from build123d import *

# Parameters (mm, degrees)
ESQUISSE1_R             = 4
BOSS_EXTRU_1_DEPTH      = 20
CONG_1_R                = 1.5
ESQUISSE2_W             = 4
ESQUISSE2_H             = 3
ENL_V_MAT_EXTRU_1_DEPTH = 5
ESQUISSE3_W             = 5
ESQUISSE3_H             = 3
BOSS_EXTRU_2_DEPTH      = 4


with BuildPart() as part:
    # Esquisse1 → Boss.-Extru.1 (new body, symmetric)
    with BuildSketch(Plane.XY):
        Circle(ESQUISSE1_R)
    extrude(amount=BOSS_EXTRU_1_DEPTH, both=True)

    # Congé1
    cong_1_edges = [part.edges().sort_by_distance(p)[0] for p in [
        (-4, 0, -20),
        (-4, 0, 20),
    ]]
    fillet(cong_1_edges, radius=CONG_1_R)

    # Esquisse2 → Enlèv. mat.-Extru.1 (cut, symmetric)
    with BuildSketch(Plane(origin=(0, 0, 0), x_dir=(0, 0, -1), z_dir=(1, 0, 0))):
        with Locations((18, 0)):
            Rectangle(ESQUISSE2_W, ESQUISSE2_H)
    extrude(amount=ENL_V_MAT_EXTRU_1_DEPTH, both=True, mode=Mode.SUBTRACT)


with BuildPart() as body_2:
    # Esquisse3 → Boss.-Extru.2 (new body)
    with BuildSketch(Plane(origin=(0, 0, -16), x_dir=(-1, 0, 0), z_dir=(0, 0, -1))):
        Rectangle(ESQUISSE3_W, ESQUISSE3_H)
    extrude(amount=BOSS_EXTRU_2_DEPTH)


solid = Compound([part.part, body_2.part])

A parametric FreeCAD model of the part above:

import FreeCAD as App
import Part
import Sketcher
from FreeCAD import Vector


def edges_at(feature, points):
    """Names of the edges that pass closest to the given points."""
    edges = feature.Shape.Edges
    near = lambda p: min(range(len(edges)), key=lambda i: edges[i].distToShape(Part.Vertex(*p))[0])
    return sorted({f"Edge{near(p) + 1}" for p in points})

doc = App.newDocument("Part")
params = doc.addObject("Spreadsheet::Sheet", "Params")
for row, (alias, value) in enumerate([
    ("sketch1_diameter", "8 mm"),
    ("pad1_length", "40 mm"),
    ("fillet_radius", "1.5 mm"),
    ("sketch2_width", "3 mm"),
    ("sketch2_height", "4 mm"),
    ("pocket1_length", "10 mm"),
    ("sketch3_width", "5 mm"),
    ("sketch3_height", "3 mm"),
    ("pad2_length", "4 mm"),
], start=1):
    params.set(f"A{row}", alias)
    params.set(f"B{row}", "=" + value)
    params.setAlias(f"B{row}", alias)

body = doc.addObject("PartDesign::Body", "Body")

# Sketch on XY plane
sketch1 = body.newObject("Sketcher::SketchObject", "Sketch")
sketch1.AttachmentSupport = (doc.getObject("XY_Plane"), [""])
sketch1.MapMode = "FlatFace"
sketch1.addGeometry(Part.Circle(Vector(0, 0, 0), Vector(0, 0, 1), 4), False)
sketch1.addConstraint(Sketcher.Constraint("Coincident", 0, 3, -1, 1))
sketch1.addConstraint(Sketcher.Constraint("Diameter", 0, 8.0))
sketch1.setExpression("Constraints[1]", "Params.sketch1_diameter")
pad1 = body.newObject("PartDesign::Pad", "Pad")
pad1.Profile = sketch1
pad1.setExpression("Length", "Params.pad1_length")
pad1.Midplane = True
doc.recompute()

fillet = body.newObject("PartDesign::Fillet", "Fillet")
fillet.Base = (pad1, edges_at(pad1, [(-4, 0, -20), (-4, 0, 20)]))
fillet.setExpression("Radius", "Params.fillet_radius")

# Sketch on YZ plane
sketch2 = body.newObject("Sketcher::SketchObject", "Sketch001")
sketch2.AttachmentSupport = (doc.getObject("YZ_Plane"), [""])
sketch2.MapMode = "FlatFace"
sketch2.addGeometry(Part.LineSegment(Vector(1.5, -16, 0), Vector(-1.5, -16, 0)), False)
sketch2.addGeometry(Part.LineSegment(Vector(-1.5, -16, 0), Vector(-1.5, -20, 0)), False)
sketch2.addGeometry(Part.LineSegment(Vector(-1.5, -20, 0), Vector(1.5, -20, 0)), False)
sketch2.addGeometry(Part.LineSegment(Vector(1.5, -20, 0), Vector(1.5, -16, 0)), False)
sketch2.addConstraint(Sketcher.Constraint("Coincident", 0, 2, 1, 1))
sketch2.addConstraint(Sketcher.Constraint("Coincident", 1, 2, 2, 1))
sketch2.addConstraint(Sketcher.Constraint("Coincident", 2, 2, 3, 1))
sketch2.addConstraint(Sketcher.Constraint("Coincident", 3, 2, 0, 1))
sketch2.addConstraint(Sketcher.Constraint("Horizontal", 0))
sketch2.addConstraint(Sketcher.Constraint("Vertical", 1))
sketch2.addConstraint(Sketcher.Constraint("Horizontal", 2))
sketch2.addConstraint(Sketcher.Constraint("Vertical", 3))
sketch2.addConstraint(Sketcher.Constraint("DistanceX", 0, 2, 0, 1, 3.0))
sketch2.addConstraint(Sketcher.Constraint("DistanceY", 1, 2, 1, 1, 4.0))
sketch2.addConstraint(Sketcher.Constraint("DistanceY", 0, 2, -1, 1, 16.0))
sketch2.addConstraint(Sketcher.Constraint("DistanceX", 0, 2, -1, 1, 1.5))
sketch2.setExpression("Constraints[8]", "Params.sketch2_width")
sketch2.setExpression("Constraints[9]", "Params.sketch2_height")
pocket1 = body.newObject("PartDesign::Pocket", "Pocket")
pocket1.Profile = sketch2
pocket1.setExpression("Length", "Params.pocket1_length")
pocket1.Midplane = True
body2 = doc.addObject("PartDesign::Body", "Body001")

# Sketch on XY plane
sketch3 = body2.newObject("Sketcher::SketchObject", "Sketch002")
sketch3.AttachmentSupport = (doc.getObject("XY_Plane001"), [""])
sketch3.MapMode = "FlatFace"
sketch3.AttachmentOffset = App.Placement(Vector(0, 0, -16), App.Rotation())
sketch3.addGeometry(Part.LineSegment(Vector(2.5, 1.5, 0), Vector(2.5, -1.5, 0)), False)
sketch3.addGeometry(Part.LineSegment(Vector(2.5, -1.5, 0), Vector(-2.5, -1.5, 0)), False)
sketch3.addGeometry(Part.LineSegment(Vector(-2.5, -1.5, 0), Vector(-2.5, 1.5, 0)), False)
sketch3.addGeometry(Part.LineSegment(Vector(-2.5, 1.5, 0), Vector(2.5, 1.5, 0)), False)
sketch3.addConstraint(Sketcher.Constraint("Coincident", 0, 2, 1, 1))
sketch3.addConstraint(Sketcher.Constraint("Coincident", 1, 2, 2, 1))
sketch3.addConstraint(Sketcher.Constraint("Coincident", 2, 2, 3, 1))
sketch3.addConstraint(Sketcher.Constraint("Coincident", 3, 2, 0, 1))
sketch3.addConstraint(Sketcher.Constraint("Vertical", 0))
sketch3.addConstraint(Sketcher.Constraint("Horizontal", 1))
sketch3.addConstraint(Sketcher.Constraint("Vertical", 2))
sketch3.addConstraint(Sketcher.Constraint("Horizontal", 3))
sketch3.addConstraint(Sketcher.Constraint("Symmetric", 0, 2, 2, 2, -1, 1))
sketch3.addConstraint(Sketcher.Constraint("DistanceX", 1, 2, 1, 1, 5.0))
sketch3.addConstraint(Sketcher.Constraint("DistanceY", 0, 2, 0, 1, 3.0))
sketch3.setExpression("Constraints[9]", "Params.sketch3_width")
sketch3.setExpression("Constraints[10]", "Params.sketch3_height")
pad2 = body2.newObject("PartDesign::Pad", "Pad001")
pad2.Profile = sketch3
pad2.setExpression("Length", "Params.pad2_length")
pad2.Reversed = True

doc.recompute()
